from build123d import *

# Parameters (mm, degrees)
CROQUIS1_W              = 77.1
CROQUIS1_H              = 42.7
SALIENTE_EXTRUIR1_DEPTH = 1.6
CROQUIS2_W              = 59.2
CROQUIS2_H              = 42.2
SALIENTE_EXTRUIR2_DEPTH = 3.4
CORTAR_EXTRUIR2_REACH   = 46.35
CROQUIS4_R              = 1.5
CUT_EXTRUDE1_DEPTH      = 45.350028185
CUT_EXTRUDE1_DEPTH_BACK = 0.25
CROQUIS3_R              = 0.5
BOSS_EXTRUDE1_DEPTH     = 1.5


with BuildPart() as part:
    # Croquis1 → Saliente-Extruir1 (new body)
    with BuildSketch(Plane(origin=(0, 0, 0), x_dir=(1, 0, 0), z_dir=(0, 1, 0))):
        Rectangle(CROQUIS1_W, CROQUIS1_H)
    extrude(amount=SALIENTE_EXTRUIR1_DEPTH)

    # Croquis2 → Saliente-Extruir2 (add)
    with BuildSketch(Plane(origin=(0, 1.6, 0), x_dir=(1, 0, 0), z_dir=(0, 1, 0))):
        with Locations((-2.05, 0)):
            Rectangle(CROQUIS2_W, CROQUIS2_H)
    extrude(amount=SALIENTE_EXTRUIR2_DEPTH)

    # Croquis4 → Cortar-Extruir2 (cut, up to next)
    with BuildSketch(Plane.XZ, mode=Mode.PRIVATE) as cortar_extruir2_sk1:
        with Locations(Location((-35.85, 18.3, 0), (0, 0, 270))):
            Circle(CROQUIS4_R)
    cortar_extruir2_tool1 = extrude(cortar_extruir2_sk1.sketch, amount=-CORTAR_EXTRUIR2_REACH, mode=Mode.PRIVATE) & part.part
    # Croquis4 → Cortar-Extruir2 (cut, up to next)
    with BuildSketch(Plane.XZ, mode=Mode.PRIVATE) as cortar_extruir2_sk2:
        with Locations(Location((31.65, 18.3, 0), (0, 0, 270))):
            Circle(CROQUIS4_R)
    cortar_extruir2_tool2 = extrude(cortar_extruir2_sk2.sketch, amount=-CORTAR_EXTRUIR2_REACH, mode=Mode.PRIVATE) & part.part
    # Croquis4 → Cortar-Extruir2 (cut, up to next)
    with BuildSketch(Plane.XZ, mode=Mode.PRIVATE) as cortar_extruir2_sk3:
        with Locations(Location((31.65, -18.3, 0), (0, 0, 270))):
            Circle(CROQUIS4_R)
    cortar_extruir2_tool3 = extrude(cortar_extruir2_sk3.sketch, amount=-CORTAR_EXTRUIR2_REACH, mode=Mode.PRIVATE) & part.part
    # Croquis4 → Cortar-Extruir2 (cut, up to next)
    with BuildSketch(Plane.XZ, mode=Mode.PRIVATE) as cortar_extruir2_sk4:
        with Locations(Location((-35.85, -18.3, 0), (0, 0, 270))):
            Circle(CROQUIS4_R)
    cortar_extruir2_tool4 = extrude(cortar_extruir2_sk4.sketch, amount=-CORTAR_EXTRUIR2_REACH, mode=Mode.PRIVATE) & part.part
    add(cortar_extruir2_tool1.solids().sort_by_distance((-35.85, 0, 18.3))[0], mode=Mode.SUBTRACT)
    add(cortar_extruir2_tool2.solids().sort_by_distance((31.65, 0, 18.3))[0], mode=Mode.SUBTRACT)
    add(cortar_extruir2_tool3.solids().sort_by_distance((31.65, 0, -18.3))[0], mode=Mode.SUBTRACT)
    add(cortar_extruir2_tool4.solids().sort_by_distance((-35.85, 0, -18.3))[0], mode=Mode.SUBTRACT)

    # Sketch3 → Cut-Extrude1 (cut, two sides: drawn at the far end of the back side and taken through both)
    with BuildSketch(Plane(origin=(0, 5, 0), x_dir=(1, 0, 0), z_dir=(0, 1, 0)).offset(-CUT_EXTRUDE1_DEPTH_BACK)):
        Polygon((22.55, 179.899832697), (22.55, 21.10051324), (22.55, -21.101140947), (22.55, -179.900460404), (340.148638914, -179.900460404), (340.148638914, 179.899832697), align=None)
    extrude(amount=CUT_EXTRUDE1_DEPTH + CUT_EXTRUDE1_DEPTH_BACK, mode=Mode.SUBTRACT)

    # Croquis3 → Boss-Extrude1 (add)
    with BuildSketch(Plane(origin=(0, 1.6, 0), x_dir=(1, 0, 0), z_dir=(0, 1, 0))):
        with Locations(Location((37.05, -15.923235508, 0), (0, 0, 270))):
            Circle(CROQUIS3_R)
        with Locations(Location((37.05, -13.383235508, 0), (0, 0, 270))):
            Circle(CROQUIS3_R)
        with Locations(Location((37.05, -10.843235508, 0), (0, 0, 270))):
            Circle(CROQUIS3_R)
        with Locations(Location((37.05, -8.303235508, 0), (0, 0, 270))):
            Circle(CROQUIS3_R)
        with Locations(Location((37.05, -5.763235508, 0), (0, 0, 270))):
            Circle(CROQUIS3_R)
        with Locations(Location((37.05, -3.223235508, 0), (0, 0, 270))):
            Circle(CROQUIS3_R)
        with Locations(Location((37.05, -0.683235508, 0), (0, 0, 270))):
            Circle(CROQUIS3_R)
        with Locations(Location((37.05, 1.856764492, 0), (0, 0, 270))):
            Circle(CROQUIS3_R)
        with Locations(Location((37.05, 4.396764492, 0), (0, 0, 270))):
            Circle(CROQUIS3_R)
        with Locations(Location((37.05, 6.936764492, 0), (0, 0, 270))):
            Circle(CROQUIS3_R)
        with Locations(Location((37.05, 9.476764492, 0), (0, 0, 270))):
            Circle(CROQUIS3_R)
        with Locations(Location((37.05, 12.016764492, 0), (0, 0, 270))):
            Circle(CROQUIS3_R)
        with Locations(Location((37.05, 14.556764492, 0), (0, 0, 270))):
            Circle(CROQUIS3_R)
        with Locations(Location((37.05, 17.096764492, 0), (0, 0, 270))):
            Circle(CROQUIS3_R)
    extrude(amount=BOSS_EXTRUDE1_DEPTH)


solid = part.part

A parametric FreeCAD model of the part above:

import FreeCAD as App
import Part
import Sketcher

V = App.Vector
Q = App.Units.Quantity

doc = App.newDocument("Part")
body = doc.addObject("PartDesign::Body", "Body")

# Sketch on XZ plane
sketch1 = body.newObject("Sketcher::SketchObject", "Sketch")
sketch1.AttachmentSupport = (doc.getObject("XZ_Plane"), [""])
sketch1.MapMode = "FlatFace"
sketch1.addGeometry(Part.LineSegment(V(-39, -21, 0), V(-39, 21, 0)), False)
sketch1.addGeometry(Part.LineSegment(V(-39, 21, 0), V(39, 21, 0)), False)
sketch1.addGeometry(Part.LineSegment(V(39, 21, 0), V(39, -21, 0)), False)
sketch1.addGeometry(Part.LineSegment(V(39, -21, 0), V(-39, -21, 0)), False)
sketch1.addConstraint(Sketcher.Constraint("Coincident", 0, 2, 1, 1))
sketch1.addConstraint(Sketcher.Constraint("Coincident", 1, 2, 2, 1))
sketch1.addConstraint(Sketcher.Constraint("Coincident", 2, 2, 3, 1))
sketch1.addConstraint(Sketcher.Constraint("Coincident", 3, 2, 0, 1))
sketch1.addConstraint(Sketcher.Constraint("Vertical", 0))
sketch1.addConstraint(Sketcher.Constraint("Horizontal", 1))
sketch1.addConstraint(Sketcher.Constraint("Vertical", 2))
sketch1.addConstraint(Sketcher.Constraint("Horizontal", 3))
sketch1.addConstraint(Sketcher.Constraint("Symmetric", 0, 2, 2, 2, -1, 1))
sketch1.addConstraint(Sketcher.Constraint("DistanceX", 1, 1, 1, 2, Q("77.1 mm")))
sketch1.addConstraint(Sketcher.Constraint("DistanceY", 0, 1, 0, 2, Q("42.7 mm")))
pad1 = body.newObject("PartDesign::Pad", "Pad")
pad1.Profile = sketch1
pad1.Length = 1.6
pad1.Reversed = True

# Sketch on XZ plane
sketch2 = body.newObject("Sketcher::SketchObject", "Sketch001")
sketch2.AttachmentSupport = (doc.getObject("XZ_Plane"), [""])
sketch2.MapMode = "FlatFace"
sketch2.AttachmentOffset = App.Placement(V(0, 0, -1.6), App.Rotation())
sketch2.addGeometry(Part.LineSegment(V(-32, -21, 0), V(-32, 21, 0)), False)
sketch2.addGeometry(Part.LineSegment(V(-32, 21, 0), V(28, 21, 0)), False)
sketch2.addGeometry(Part.LineSegment(V(28, 21, 0), V(28, -21, 0)), False)
sketch2.addGeometry(Part.LineSegment(V(28, -21, 0), V(-32, -21, 0)), False)
sketch2.addConstraint(Sketcher.Constraint("Coincident", 0, 2, 1, 1))
sketch2.addConstraint(Sketcher.Constraint("Coincident", 1, 2, 2, 1))
sketch2.addConstraint(Sketcher.Constraint("Coincident", 2, 2, 3, 1))
sketch2.addConstraint(Sketcher.Constraint("Coincident", 3, 2, 0, 1))
sketch2.addConstraint(Sketcher.Constraint("Vertical", 0))
sketch2.addConstraint(Sketcher.Constraint("Horizontal", 1))
sketch2.addConstraint(Sketcher.Constraint("Vertical", 2))
sketch2.addConstraint(Sketcher.Constraint("Horizontal", 3))
sketch2.addConstraint(Sketcher.Constraint("DistanceX", 1, 1, 1, 2, Q("59.2 mm")))
sketch2.addConstraint(Sketcher.Constraint("DistanceY", 0, 1, 0, 2, Q("42.2 mm")))
sketch2.addConstraint(Sketcher.Constraint("DistanceY", -1, 1, 0, 2, Q("21.1 mm")))
sketch2.addConstraint(Sketcher.Constraint("DistanceX", 0, 2, -1, 1, Q("31.65 mm")))
pad2 = body.newObject("PartDesign::Pad", "Pad001")
pad2.Profile = sketch2
pad2.Length = 3.4
pad2.Reversed = True

# Sketch on XZ plane
sketch3 = body.newObject("Sketcher::SketchObject", "Sketch002")
sketch3.AttachmentSupport = (doc.getObject("XZ_Plane"), [""])
sketch3.MapMode = "FlatFace"
sketch3.addGeometry(Part.Circle(V(-35.9, 18.3, 0), V(0, 0, 1), 1.5), False)
sketch3.addConstraint(Sketcher.Constraint("Diameter", 0, Q("3 mm")))
sketch3.addConstraint(Sketcher.Constraint("DistanceY", -1, 1, 0, 3, Q("18.3 mm")))
sketch3.addConstraint(Sketcher.Constraint("DistanceX", 0, 3, -1, 1, Q("35.85 mm")))
pocket1 = body.newObject("PartDesign::Pocket", "Pocket")
pocket1.Profile = sketch3
pocket1.Type = "UpToFirst"

# Sketch on XZ plane
sketch4 = body.newObject("Sketcher::SketchObject", "Sketch003")
sketch4.AttachmentSupport = (doc.getObject("XZ_Plane"), [""])
sketch4.MapMode = "FlatFace"
sketch4.addGeometry(Part.Circle(V(31.6, 18.3, 0), V(0, 0, 1), 1.5), False)
sketch4.addConstraint(Sketcher.Constraint("Diameter", 0, Q("3 mm")))
sketch4.addConstraint(Sketcher.Constraint("DistanceY", -1, 1, 0, 3, Q("18.3 mm")))
sketch4.addConstraint(Sketcher.Constraint("DistanceX", -1, 1, 0, 3, Q("31.65 mm")))
pocket2 = body.newObject("PartDesign::Pocket", "Pocket001")
pocket2.Profile = sketch4
pocket2.Type = "UpToFirst"

# Sketch on XZ plane
sketch5 = body.newObject("Sketcher::SketchObject", "Sketch004")
sketch5.AttachmentSupport = (doc.getObject("XZ_Plane"), [""])
sketch5.MapMode = "FlatFace"
sketch5.addGeometry(Part.Circle(V(31.6, -18.3, 0), V(0, 0, 1), 1.5), False)
sketch5.addConstraint(Sketcher.Constraint("Diameter", 0, Q("3 mm")))
sketch5.addConstraint(Sketcher.Constraint("DistanceY", 0, 3, -1, 1, Q("18.3 mm")))
sketch5.addConstraint(Sketcher.Constraint("DistanceX", -1, 1, 0, 3, Q("31.65 mm")))
pocket3 = body.newObject("PartDesign::Pocket", "Pocket002")
pocket3.Profile = sketch5
pocket3.Type = "UpToFirst"

# Sketch on XZ plane
sketch6 = body.newObject("Sketcher::SketchObject", "Sketch005")
sketch6.AttachmentSupport = (doc.getObject("XZ_Plane"), [""])
sketch6.MapMode = "FlatFace"
sketch6.addGeometry(Part.Circle(V(-35.9, -18.3, 0), V(0, 0, 1), 1.5), False)
sketch6.addConstraint(Sketcher.Constraint("Diameter", 0, Q("3 mm")))
sketch6.addConstraint(Sketcher.Constraint("DistanceY", 0, 3, -1, 1, Q("18.3 mm")))
sketch6.addConstraint(Sketcher.Constraint("DistanceX", 0, 3, -1, 1, Q("35.85 mm")))
pocket4 = body.newObject("PartDesign::Pocket", "Pocket003")
pocket4.Profile = sketch6
pocket4.Type = "UpToFirst"

# Sketch on XZ plane
sketch7 = body.newObject("Sketcher::SketchObject", "Sketch006")
sketch7.AttachmentSupport = (doc.getObject("XZ_Plane"), [""])
sketch7.MapMode = "FlatFace"
sketch7.AttachmentOffset = App.Placement(V(0, 0, -5), App.Rotation())
sketch7.addGeometry(Part.LineSegment(V(23, -180, 0), V(23, 180, 0)), False)
sketch7.addGeometry(Part.LineSegment(V(23, 180, 0), V(340, 180, 0)), False)
sketch7.addGeometry(Part.LineSegment(V(340, 180, 0), V(340, -180, 0)), False)
sketch7.addGeometry(Part.LineSegment(V(340, -180, 0), V(23, -180, 0)), False)
sketch7.addConstraint(Sketcher.Constraint("Coincident", 0, 2, 1, 1))
sketch7.addConstraint(Sketcher.Constraint("Coincident", 1, 2, 2, 1))
sketch7.addConstraint(Sketcher.Constraint("Coincident", 2, 2, 3, 1))
sketch7.addConstraint(Sketcher.Constraint("Coincident", 3, 2, 0, 1))
sketch7.addConstraint(Sketcher.Constraint("Vertical", 0))
sketch7.addConstraint(Sketcher.Constraint("Horizontal", 1))
sketch7.addConstraint(Sketcher.Constraint("Vertical", 2))
sketch7.addConstraint(Sketcher.Constraint("Horizontal", 3))
sketch7.addConstraint(Sketcher.Constraint("DistanceX", -1, 1, 0, 2, Q("22.55 mm")))
sketch7.addConstraint(Sketcher.Constraint("DistanceX", 1, 1, 1, 2, Q("317.598639 mm")))
sketch7.addConstraint(Sketcher.Constraint("DistanceY", 0, 1, 0, 2, Q("359.800293 mm")))
sketch7.addConstraint(Sketcher.Constraint("DistanceY", -1, 1, 0, 2, Q("179.90046 mm")))
pocket5 = body.newObject("PartDesign::Pocket", "Pocket004")
pocket5.Profile = sketch7
pocket5.Type = "TwoLengths"
pocket5.Length = 45.350028
pocket5.Length2 = 0.25

# Sketch on XZ plane
sketch8 = body.newObject("Sketcher::SketchObject", "Sketch007")
sketch8.AttachmentSupport = (doc.getObject("XZ_Plane"), [""])
sketch8.MapMode = "FlatFace"
sketch8.AttachmentOffset = App.Placement(V(0, 0, -1.6), App.Rotation())
sketch8.addGeometry(Part.Circle(V(37, 15.9, 0), V(0, 0, 1), 0.5), False)
sketch8.addGeometry(Part.Circle(V(37, 13.4, 0), V(0, 0, 1), 0.5), False)
sketch8.addGeometry(Part.Circle(V(37, 10.8, 0), V(0, 0, 1), 0.5), False)
sketch8.addGeometry(Part.Circle(V(37, 8.3, 0), V(0, 0, 1), 0.5), False)
sketch8.addGeometry(Part.Circle(V(37, 5.8, 0), V(0, 0, 1), 0.5), False)
sketch8.addGeometry(Part.Circle(V(37, 3.2, 0), V(0, 0, 1), 0.5), False)
sketch8.addGeometry(Part.Circle(V(37, 0.7, 0), V(0, 0, 1), 0.5), False)
sketch8.addGeometry(Part.Circle(V(37, -1.9, 0), V(0, 0, 1), 0.5), False)
sketch8.addGeometry(Part.Circle(V(37, -4.4, 0), V(0, 0, 1), 0.5), False)
sketch8.addGeometry(Part.Circle(V(37, -6.9, 0), V(0, 0, 1), 0.5), False)
sketch8.addGeometry(Part.Circle(V(37, -9.5, 0), V(0, 0, 1), 0.5), False)
sketch8.addGeometry(Part.Circle(V(37, -12, 0), V(0, 0, 1), 0.5), False)
sketch8.addGeometry(Part.Circle(V(37, -14.6, 0), V(0, 0, 1), 0.5), False)
sketch8.addGeometry(Part.Circle(V(37, -17.1, 0), V(0, 0, 1), 0.5), False)
sketch8.addConstraint(Sketcher.Constraint("Equal", 0, 1))
sketch8.addConstraint(Sketcher.Constraint("Equal", 1, 2))
sketch8.addConstraint(Sketcher.Constraint("Equal", 2, 3))
sketch8.addConstraint(Sketcher.Constraint("Equal", 3, 4))
sketch8.addConstraint(Sketcher.Constraint("Equal", 4, 5))
sketch8.addConstraint(Sketcher.Constraint("Equal", 5, 6))
sketch8.addConstraint(Sketcher.Constraint("Equal", 6, 7))
sketch8.addConstraint(Sketcher.Constraint("Equal", 7, 8))
sketch8.addConstraint(Sketcher.Constraint("Equal", 8, 9))
sketch8.addConstraint(Sketcher.Constraint("Equal", 9, 10))
sketch8.addConstraint(Sketcher.Constraint("Equal", 10, 11))
sketch8.addConstraint(Sketcher.Constraint("Equal", 11, 12))
sketch8.addConstraint(Sketcher.Constraint("Equal", 12, 13))
sketch8.addConstraint(Sketcher.Constraint("Vertical", 0, 3, 1, 3))
sketch8.addConstraint(Sketcher.Constraint("Vertical", 1, 3, 2, 3))
sketch8.addConstraint(Sketcher.Constraint("Vertical", 2, 3, 3, 3))
sketch8.addConstraint(Sketcher.Constraint("Vertical", 3, 3, 4, 3))
sketch8.addConstraint(Sketcher.Constraint("Vertical", 4, 3, 5, 3))
sketch8.addConstraint(Sketcher.Constraint("Vertical", 5, 3, 6, 3))
sketch8.addConstraint(Sketcher.Constraint("Vertical", 6, 3, 7, 3))
sketch8.addConstraint(Sketcher.Constraint("Vertical", 7, 3, 8, 3))
sketch8.addConstraint(Sketcher.Constraint("Vertical", 8, 3, 9, 3))
sketch8.addConstraint(Sketcher.Constraint("Vertical", 9, 3, 10, 3))
sketch8.addConstraint(Sketcher.Constraint("Vertical", 10, 3, 11, 3))
sketch8.addConstraint(Sketcher.Constraint("Vertical", 11, 3, 12, 3))
sketch8.addConstraint(Sketcher.Constraint("Vertical", 12, 3, 13, 3))
sketch8.addConstraint(Sketcher.Constraint("Diameter", 0, Q("1 mm")))
sketch8.addConstraint(Sketcher.Constraint("DistanceY", 5, 3, 0, 3, Q("12.7 mm")))
sketch8.addConstraint(Sketcher.Constraint("DistanceY", 6, 3, 1, 3, Q("12.7 mm")))
sketch8.addConstraint(Sketcher.Constraint("DistanceY", 7, 3, 2, 3, Q("12.7 mm")))
sketch8.addConstraint(Sketcher.Constraint("DistanceY", 8, 3, 3, 3, Q("12.7 mm")))
sketch8.addConstraint(Sketcher.Constraint("DistanceY", 9, 3, 4, 3, Q("12.7 mm")))
sketch8.addConstraint(Sketcher.Constraint("DistanceY", 10, 3, 5, 3, Q("12.7 mm")))
sketch8.addConstraint(Sketcher.Constraint("DistanceY", 11, 3, 6, 3, Q("12.7 mm")))
sketch8.addConstraint(Sketcher.Constraint("DistanceY", 12, 3, 7, 3, Q("12.7 mm")))
sketch8.addConstraint(Sketcher.Constraint("DistanceY", 13, 3, 8, 3, Q("12.7 mm")))
sketch8.addConstraint(Sketcher.Constraint("DistanceX", -1, 1, 0, 3, Q("37.05 mm")))
sketch8.addConstraint(Sketcher.Constraint("DistanceY", 1, 3, 0, 3, Q("2.54 mm")))
sketch8.addConstraint(Sketcher.Constraint("DistanceY", 2, 3, 1, 3, Q("2.54 mm")))
sketch8.addConstraint(Sketcher.Constraint("DistanceY", 3, 3, 2, 3, Q("2.54 mm")))
sketch8.addConstraint(Sketcher.Constraint("DistanceY", 4, 3, 3, 3, Q("2.54 mm")))
sketch8.addConstraint(Sketcher.Constraint("DistanceY", -1, 1, 0, 3, Q("15.923236 mm")))
pad3 = body.newObject("PartDesign::Pad", "Pad002")
pad3.Profile = sketch8
pad3.Length = 1.5
pad3.Reversed = True

doc.recompute()
